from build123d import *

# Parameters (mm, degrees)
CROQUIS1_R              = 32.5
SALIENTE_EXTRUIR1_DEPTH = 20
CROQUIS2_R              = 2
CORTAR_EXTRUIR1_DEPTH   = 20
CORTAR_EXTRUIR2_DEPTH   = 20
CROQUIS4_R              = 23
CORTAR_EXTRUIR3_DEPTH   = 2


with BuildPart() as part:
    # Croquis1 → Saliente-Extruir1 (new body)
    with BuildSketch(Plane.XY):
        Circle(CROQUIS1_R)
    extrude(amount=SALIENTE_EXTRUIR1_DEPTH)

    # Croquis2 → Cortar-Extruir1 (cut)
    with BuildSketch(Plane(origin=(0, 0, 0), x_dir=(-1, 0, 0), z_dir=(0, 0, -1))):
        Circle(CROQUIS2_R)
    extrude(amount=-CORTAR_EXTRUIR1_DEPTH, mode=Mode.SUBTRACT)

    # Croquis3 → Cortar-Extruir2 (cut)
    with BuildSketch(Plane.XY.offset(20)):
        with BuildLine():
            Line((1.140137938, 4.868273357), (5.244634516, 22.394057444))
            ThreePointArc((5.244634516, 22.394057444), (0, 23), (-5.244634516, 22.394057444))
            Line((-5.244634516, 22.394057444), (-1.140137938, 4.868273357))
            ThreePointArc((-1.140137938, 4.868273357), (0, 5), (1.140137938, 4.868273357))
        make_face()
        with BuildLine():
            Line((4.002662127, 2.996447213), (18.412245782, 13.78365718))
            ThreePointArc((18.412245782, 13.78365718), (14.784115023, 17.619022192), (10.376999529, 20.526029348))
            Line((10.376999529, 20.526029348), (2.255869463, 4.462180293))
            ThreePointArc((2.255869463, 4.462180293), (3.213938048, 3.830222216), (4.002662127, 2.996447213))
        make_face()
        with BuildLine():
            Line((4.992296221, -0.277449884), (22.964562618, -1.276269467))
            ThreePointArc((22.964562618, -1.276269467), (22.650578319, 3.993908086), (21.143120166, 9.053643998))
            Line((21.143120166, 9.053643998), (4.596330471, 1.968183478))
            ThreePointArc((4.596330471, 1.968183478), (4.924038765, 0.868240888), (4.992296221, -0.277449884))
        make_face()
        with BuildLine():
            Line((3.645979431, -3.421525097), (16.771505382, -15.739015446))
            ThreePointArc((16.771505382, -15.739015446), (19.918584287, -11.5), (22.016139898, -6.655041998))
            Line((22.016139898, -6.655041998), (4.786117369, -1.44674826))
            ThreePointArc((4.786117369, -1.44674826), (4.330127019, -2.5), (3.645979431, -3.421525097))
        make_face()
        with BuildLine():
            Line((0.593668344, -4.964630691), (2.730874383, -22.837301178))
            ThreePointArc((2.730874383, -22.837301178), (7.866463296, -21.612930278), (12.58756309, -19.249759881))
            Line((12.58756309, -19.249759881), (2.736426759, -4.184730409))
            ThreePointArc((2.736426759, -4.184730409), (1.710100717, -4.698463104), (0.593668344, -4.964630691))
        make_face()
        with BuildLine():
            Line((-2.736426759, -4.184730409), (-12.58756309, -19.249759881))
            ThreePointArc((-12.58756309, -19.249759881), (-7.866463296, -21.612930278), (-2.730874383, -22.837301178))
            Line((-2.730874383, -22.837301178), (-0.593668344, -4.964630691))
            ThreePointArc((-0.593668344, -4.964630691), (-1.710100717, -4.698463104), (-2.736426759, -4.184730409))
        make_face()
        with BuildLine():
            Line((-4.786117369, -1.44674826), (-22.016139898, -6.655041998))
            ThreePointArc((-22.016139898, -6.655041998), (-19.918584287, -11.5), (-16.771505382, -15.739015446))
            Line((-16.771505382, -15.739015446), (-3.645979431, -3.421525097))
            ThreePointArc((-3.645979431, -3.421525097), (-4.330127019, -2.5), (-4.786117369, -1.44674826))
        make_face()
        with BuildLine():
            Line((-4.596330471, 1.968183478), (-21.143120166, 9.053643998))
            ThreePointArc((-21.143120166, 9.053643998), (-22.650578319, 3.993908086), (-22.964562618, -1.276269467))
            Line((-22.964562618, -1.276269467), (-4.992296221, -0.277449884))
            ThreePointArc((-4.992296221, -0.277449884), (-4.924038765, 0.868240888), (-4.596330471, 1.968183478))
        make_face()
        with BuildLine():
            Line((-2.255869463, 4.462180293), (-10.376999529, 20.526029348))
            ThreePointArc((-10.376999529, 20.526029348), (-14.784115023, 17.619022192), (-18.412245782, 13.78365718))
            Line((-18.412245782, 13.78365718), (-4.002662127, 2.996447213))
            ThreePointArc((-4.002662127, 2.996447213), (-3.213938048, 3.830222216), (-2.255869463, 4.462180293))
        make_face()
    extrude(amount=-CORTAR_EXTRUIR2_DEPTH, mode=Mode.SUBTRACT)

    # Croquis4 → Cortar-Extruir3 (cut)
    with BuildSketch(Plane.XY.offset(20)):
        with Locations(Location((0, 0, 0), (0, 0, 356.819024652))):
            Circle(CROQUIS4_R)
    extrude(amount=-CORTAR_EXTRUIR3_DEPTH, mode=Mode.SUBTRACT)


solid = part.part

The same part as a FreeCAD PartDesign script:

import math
import FreeCAD as App
import Part
import Sketcher
from FreeCAD import Vector

doc = App.newDocument("Part")
body = doc.addObject("PartDesign::Body", "Body")

# Sketch on XY plane
sketch1 = body.newObject("Sketcher::SketchObject", "Sketch")
sketch1.AttachmentSupport = (doc.getObject("XY_Plane"), [""])
sketch1.MapMode = "FlatFace"
sketch1.addGeometry(Part.Circle(Vector(0, 0, 0), Vector(0, 0, 1), 32), False)
sketch1.addConstraint([
    Sketcher.Constraint("Coincident", 0, 3, -1, 1),
    Sketcher.Constraint("Diameter", 0, 65.0),
])
pad1 = body.newObject("PartDesign::Pad", "Pad")
pad1.Profile = sketch1
pad1.Length = 20

# Sketch on XY plane
sketch2 = body.newObject("Sketcher::SketchObject", "Sketch001")
sketch2.AttachmentSupport = (doc.getObject("XY_Plane"), [""])
sketch2.MapMode = "FlatFace"
sketch2.addGeometry(Part.Circle(Vector(0, 0, 0), Vector(0, 0, 1), 2), False)
sketch2.addConstraint([
    Sketcher.Constraint("Coincident", 0, 3, -1, 1),
    Sketcher.Constraint("Diameter", 0, 4.0),
])
pocket1 = body.newObject("PartDesign::Pocket", "Pocket")
pocket1.Profile = sketch2
pocket1.Length = 20
pocket1.Reversed = True

# Sketch on XY plane
sketch3 = body.newObject("Sketcher::SketchObject", "Sketch002")
sketch3.AttachmentSupport = (doc.getObject("XY_Plane"), [""])
sketch3.MapMode = "FlatFace"
sketch3.AttachmentOffset = App.Placement(Vector(0, 0, 20), App.Rotation())
sketch3.addGeometry([
    Part.LineSegment(Vector(1.1, 4.9, 0), Vector(5.2, 22.4, 0)),  # 0
    Part.ArcOfCircle(Part.Circle(Vector(0, 0, 0), Vector(0, 0, 1), 23), math.radians(77), math.radians(103)),  # 1
    Part.LineSegment(Vector(-5.2, 22.4, 0), Vector(-1.1, 4.9, 0)),  # 2
    Part.ArcOfCircle(Part.Circle(Vector(0, 0, 0), Vector(0, 0, 1), 5), math.radians(77), math.radians(103)),  # 3
    Part.LineSegment(Vector(4, 3, 0), Vector(18.4, 13.8, 0)),  # 4
    Part.ArcOfCircle(Part.Circle(Vector(0, 0, 0), Vector(0, 0, 1), 23), math.radians(37), math.radians(63)),  # 5
    Part.LineSegment(Vector(10.4, 20.5, 0), Vector(2.3, 4.5, 0)),  # 6
    Part.ArcOfCircle(Part.Circle(Vector(0, 0, 0), Vector(0, 0, 1), 5), math.radians(37), math.radians(63)),  # 7
    Part.LineSegment(Vector(5, -0.3, 0), Vector(23, -1.3, 0)),  # 8
    Part.ArcOfCircle(Part.Circle(Vector(0, 0, 0), Vector(0, 0, 1), 23), math.radians(-3), math.radians(23)),  # 9
    Part.LineSegment(Vector(21.1, 9.1, 0), Vector(4.6, 2, 0)),  # 10
    Part.ArcOfCircle(Part.Circle(Vector(0, 0, 0), Vector(0, 0, 1), 5), math.radians(-3), math.radians(23)),  # 11
    Part.LineSegment(Vector(3.6, -3.4, 0), Vector(16.8, -15.7, 0)),  # 12
    Part.ArcOfCircle(Part.Circle(Vector(0, 0, 0), Vector(0, 0, 1), 23), math.radians(-43), math.radians(-17)),  # 13
    Part.LineSegment(Vector(22, -6.7, 0), Vector(4.8, -1.4, 0)),  # 14
    Part.ArcOfCircle(Part.Circle(Vector(0, 0, 0), Vector(0, 0, 1), 5), math.radians(-43), math.radians(-17)),  # 15
    Part.LineSegment(Vector(0.6, -5, 0), Vector(2.7, -22.8, 0)),  # 16
    Part.ArcOfCircle(Part.Circle(Vector(0, 0, 0), Vector(0, 0, 1), 23), math.radians(-83), math.radians(-57)),  # 17
    Part.LineSegment(Vector(12.6, -19.2, 0), Vector(2.7, -4.2, 0)),  # 18
    Part.ArcOfCircle(Part.Circle(Vector(0, 0, 0), Vector(0, 0, 1), 5), math.radians(-83), math.radians(-57)),  # 19
    Part.LineSegment(Vector(-2.7, -4.2, 0), Vector(-12.6, -19.2, 0)),  # 20
    Part.ArcOfCircle(Part.Circle(Vector(0, 0, 0), Vector(0, 0, 1), 23), math.radians(-123), math.radians(-97)),  # 21
    Part.LineSegment(Vector(-2.7, -22.8, 0), Vector(-0.6, -5, 0)),  # 22
    Part.ArcOfCircle(Part.Circle(Vector(0, 0, 0), Vector(0, 0, 1), 5), math.radians(-123), math.radians(-97)),  # 23
    Part.LineSegment(Vector(-4.8, -1.4, 0), Vector(-22, -6.7, 0)),  # 24
    Part.ArcOfCircle(Part.Circle(Vector(0, 0, 0), Vector(0, 0, 1), 23), math.radians(-163), math.radians(-137)),  # 25
    Part.LineSegment(Vector(-16.8, -15.7, 0), Vector(-3.6, -3.4, 0)),  # 26
    Part.ArcOfCircle(Part.Circle(Vector(0, 0, 0), Vector(0, 0, 1), 5), math.radians(-163), math.radians(-137)),  # 27
    Part.LineSegment(Vector(-4.6, 2, 0), Vector(-21.1, 9.1, 0)),  # 28
    Part.ArcOfCircle(Part.Circle(Vector(0, 0, 0), Vector(0, 0, 1), 23), math.radians(157), math.radians(183)),  # 29
    Part.LineSegment(Vector(-23, -1.3, 0), Vector(-5, -0.3, 0)),  # 30
    Part.ArcOfCircle(Part.Circle(Vector(0, 0, 0), Vector(0, 0, 1), 5), math.radians(157), math.radians(183)),  # 31
    Part.LineSegment(Vector(-2.3, 4.5, 0), Vector(-10.4, 20.5, 0)),  # 32
    Part.ArcOfCircle(Part.Circle(Vector(0, 0, 0), Vector(0, 0, 1), 23), math.radians(117), math.radians(143)),  # 33
    Part.LineSegment(Vector(-18.4, 13.8, 0), Vector(-4, 3, 0)),  # 34
    Part.ArcOfCircle(Part.Circle(Vector(0, 0, 0), Vector(0, 0, 1), 5), math.radians(117), math.radians(143)),  # 35
], False)
sketch3.addConstraint([
    Sketcher.Constraint("Coincident", 0, 2, 1, 1),
    Sketcher.Constraint("Coincident", 1, 2, 2, 1),
    Sketcher.Constraint("Coincident", 2, 2, 3, 2),
    Sketcher.Constraint("Coincident", 3, 1, 0, 1),
    Sketcher.Constraint("Coincident", 4, 2, 5, 1),
    Sketcher.Constraint("Coincident", 5, 2, 6, 1),
    Sketcher.Constraint("Coincident", 6, 2, 7, 2),
    Sketcher.Constraint("Coincident", 7, 1, 4, 1),
    Sketcher.Constraint("Coincident", 8, 2, 9, 1),
    Sketcher.Constraint("Coincident", 9, 2, 10, 1),
    Sketcher.Constraint("Coincident", 10, 2, 11, 2),
    Sketcher.Constraint("Coincident", 11, 1, 8, 1),
    Sketcher.Constraint("Coincident", 12, 2, 13, 1),
    Sketcher.Constraint("Coincident", 13, 2, 14, 1),
    Sketcher.Constraint("Coincident", 14, 2, 15, 2),
    Sketcher.Constraint("Coincident", 15, 1, 12, 1),
    Sketcher.Constraint("Coincident", 16, 2, 17, 1),
    Sketcher.Constraint("Coincident", 17, 2, 18, 1),
    Sketcher.Constraint("Coincident", 18, 2, 19, 2),
    Sketcher.Constraint("Coincident", 19, 1, 16, 1),
    Sketcher.Constraint("Coincident", 20, 2, 21, 1),
    Sketcher.Constraint("Coincident", 21, 2, 22, 1),
    Sketcher.Constraint("Coincident", 22, 2, 23, 2),
    Sketcher.Constraint("Coincident", 23, 1, 20, 1),
    Sketcher.Constraint("Coincident", 24, 2, 25, 1),
    Sketcher.Constraint("Coincident", 25, 2, 26, 1),
    Sketcher.Constraint("Coincident", 26, 2, 27, 2),
    Sketcher.Constraint("Coincident", 27, 1, 24, 1),
    Sketcher.Constraint("Coincident", 28, 2, 29, 1),
    Sketcher.Constraint("Coincident", 29, 2, 30, 1),
    Sketcher.Constraint("Coincident", 30, 2, 31, 2),
    Sketcher.Constraint("Coincident", 31, 1, 28, 1),
    Sketcher.Constraint("Coincident", 32, 2, 33, 1),
    Sketcher.Constraint("Coincident", 33, 2, 34, 1),
    Sketcher.Constraint("Coincident", 34, 2, 35, 2),
    Sketcher.Constraint("Coincident", 35, 1, 32, 1),
    Sketcher.Constraint("Coincident", 1, 3, -1, 1),
    Sketcher.Constraint("Coincident", 3, 3, -1, 1),
    Sketcher.Constraint("Coincident", 5, 3, -1, 1),
    Sketcher.Constraint("Coincident", 7, 3, -1, 1),
    Sketcher.Constraint("Coincident", 9, 3, -1, 1),
    Sketcher.Constraint("Coincident", 11, 3, -1, 1),
    Sketcher.Constraint("Coincident", 13, 3, -1, 1),
    Sketcher.Constraint("Coincident", 15, 3, -1, 1),
    Sketcher.Constraint("Coincident", 17, 3, -1, 1),
    Sketcher.Constraint("Coincident", 19, 3, -1, 1),
    Sketcher.Constraint("Coincident", 21, 3, -1, 1),
    Sketcher.Constraint("Coincident", 23, 3, -1, 1),
    Sketcher.Constraint("Coincident", 25, 3, -1, 1),
    Sketcher.Constraint("Coincident", 27, 3, -1, 1),
    Sketcher.Constraint("Coincident", 29, 3, -1, 1),
    Sketcher.Constraint("Coincident", 31, 3, -1, 1),
    Sketcher.Constraint("Coincident", 33, 3, -1, 1),
    Sketcher.Constraint("Coincident", 35, 3, -1, 1),
    Sketcher.Constraint("Equal", 1, 5),
    Sketcher.Constraint("Equal", 3, 7),
    Sketcher.Constraint("Equal", 5, 9),
    Sketcher.Constraint("Equal", 7, 11),
    Sketcher.Constraint("Equal", 9, 13),
    Sketcher.Constraint("Equal", 11, 15),
    Sketcher.Constraint("Equal", 13, 17),
    Sketcher.Constraint("Equal", 15, 19),
    Sketcher.Constraint("Equal", 17, 21),
    Sketcher.Constraint("Equal", 19, 23),
    Sketcher.Constraint("Equal", 21, 25),
    Sketcher.Constraint("Equal", 23, 27),
    Sketcher.Constraint("Equal", 25, 29),
    Sketcher.Constraint("Equal", 27, 31),
    Sketcher.Constraint("Equal", 29, 33),
    Sketcher.Constraint("Equal", 31, 35),
    Sketcher.Constraint("Horizontal", 0, 2, 1, 2),
    Sketcher.Constraint("Horizontal", 2, 2, 3, 1),
    Sketcher.Constraint("Horizontal", 17, 2, 20, 2),
    Sketcher.Constraint("Horizontal", 16, 2, 21, 2),
    Sketcher.Constraint("Horizontal", 19, 1, 22, 2),
    Sketcher.Constraint("Horizontal", 18, 2, 23, 1),
    Sketcher.Constraint("Horizontal", 13, 2, 24, 2),
    Sketcher.Constraint("Horizontal", 12, 2, 25, 2),
    Sketcher.Constraint("Horizontal", 15, 1, 26, 2),
    Sketcher.Constraint("Horizontal", 14, 2, 27, 1),
    Sketcher.Constraint("Horizontal", 9, 2, 28, 2),
    Sketcher.Constraint("Horizontal", 8, 2, 29, 2),
    Sketcher.Constraint("Horizontal", 11, 1, 30, 2),
    Sketcher.Constraint("Horizontal", 10, 2, 31, 1),
    Sketcher.Constraint("Horizontal", 5, 2, 32, 2),
    Sketcher.Constraint("Horizontal", 4, 2, 33, 2),
    Sketcher.Constraint("Horizontal", 7, 1, 34, 2),
    Sketcher.Constraint("Horizontal", 6, 2, 35, 1),
    Sketcher.Constraint("Radius", 1, 23.0),
    Sketcher.Constraint("Radius", 3, 5.0),
    Sketcher.Constraint("DistanceX", -1, 1, 5, 2, 10.377),
    Sketcher.Constraint("DistanceY", 16, 2, -1, 1, 22.837301),
    Sketcher.Constraint("DistanceY", 4, 2, 0, 2, 8.6104),
    Sketcher.Constraint("DistanceX", 7, 1, 8, 2, 18.9619),
    Sketcher.Constraint("DistanceY", 12, 2, 10, 2, 17.707199),
    Sketcher.Constraint("DistanceY", 14, 2, 11, 1, 1.169298),
    Sketcher.Constraint("DistanceY", 19, 1, 18, 2, 0.7799),
    Sketcher.Constraint("DistanceX", 21, 2, 18, 2, 5.467301),
    Sketcher.Constraint("DistanceX", -1, 1, 6, 2, 2.255869),
    Sketcher.Constraint("DistanceY", 8, 2, -1, 1, 1.276269),
    Sketcher.Constraint("DistanceX", -1, 1, 9, 2, 21.14312),
    Sketcher.Constraint("DistanceX", -1, 1, 10, 2, 4.59633),
    Sketcher.Constraint("DistanceY", 11, 1, -1, 1, 0.27745),
    Sketcher.Constraint("DistanceX", -1, 1, 13, 2, 22.01614),
    Sketcher.Constraint("DistanceX", -1, 1, 15, 1, 3.645979),
    Sketcher.Constraint("DistanceY", 17, 2, -1, 1, 19.24976),
    Sketcher.Constraint("DistanceX", 1, 2, 0, 2, 10.489269),
    Sketcher.Constraint("DistanceX", 3, 1, 5, 2, 9.236862),
])
pocket2 = body.newObject("PartDesign::Pocket", "Pocket001")
pocket2.Profile = sketch3
pocket2.Length = 20

# Sketch on XY plane
sketch4 = body.newObject("Sketcher::SketchObject", "Sketch003")
sketch4.AttachmentSupport = (doc.getObject("XY_Plane"), [""])
sketch4.MapMode = "FlatFace"
sketch4.AttachmentOffset = App.Placement(Vector(0, 0, 20), App.Rotation())
sketch4.addGeometry(Part.Circle(Vector(0, 0, 0), Vector(0, 0, 1), 23), False)
sketch4.addConstraint([
    Sketcher.Constraint("Coincident", 0, 3, -1, 1),
    Sketcher.Constraint("Diameter", 0, 46.0),
])
pocket3 = body.newObject("PartDesign::Pocket", "Pocket002")
pocket3.Profile = sketch4
pocket3.Length = 2

doc.recompute()
